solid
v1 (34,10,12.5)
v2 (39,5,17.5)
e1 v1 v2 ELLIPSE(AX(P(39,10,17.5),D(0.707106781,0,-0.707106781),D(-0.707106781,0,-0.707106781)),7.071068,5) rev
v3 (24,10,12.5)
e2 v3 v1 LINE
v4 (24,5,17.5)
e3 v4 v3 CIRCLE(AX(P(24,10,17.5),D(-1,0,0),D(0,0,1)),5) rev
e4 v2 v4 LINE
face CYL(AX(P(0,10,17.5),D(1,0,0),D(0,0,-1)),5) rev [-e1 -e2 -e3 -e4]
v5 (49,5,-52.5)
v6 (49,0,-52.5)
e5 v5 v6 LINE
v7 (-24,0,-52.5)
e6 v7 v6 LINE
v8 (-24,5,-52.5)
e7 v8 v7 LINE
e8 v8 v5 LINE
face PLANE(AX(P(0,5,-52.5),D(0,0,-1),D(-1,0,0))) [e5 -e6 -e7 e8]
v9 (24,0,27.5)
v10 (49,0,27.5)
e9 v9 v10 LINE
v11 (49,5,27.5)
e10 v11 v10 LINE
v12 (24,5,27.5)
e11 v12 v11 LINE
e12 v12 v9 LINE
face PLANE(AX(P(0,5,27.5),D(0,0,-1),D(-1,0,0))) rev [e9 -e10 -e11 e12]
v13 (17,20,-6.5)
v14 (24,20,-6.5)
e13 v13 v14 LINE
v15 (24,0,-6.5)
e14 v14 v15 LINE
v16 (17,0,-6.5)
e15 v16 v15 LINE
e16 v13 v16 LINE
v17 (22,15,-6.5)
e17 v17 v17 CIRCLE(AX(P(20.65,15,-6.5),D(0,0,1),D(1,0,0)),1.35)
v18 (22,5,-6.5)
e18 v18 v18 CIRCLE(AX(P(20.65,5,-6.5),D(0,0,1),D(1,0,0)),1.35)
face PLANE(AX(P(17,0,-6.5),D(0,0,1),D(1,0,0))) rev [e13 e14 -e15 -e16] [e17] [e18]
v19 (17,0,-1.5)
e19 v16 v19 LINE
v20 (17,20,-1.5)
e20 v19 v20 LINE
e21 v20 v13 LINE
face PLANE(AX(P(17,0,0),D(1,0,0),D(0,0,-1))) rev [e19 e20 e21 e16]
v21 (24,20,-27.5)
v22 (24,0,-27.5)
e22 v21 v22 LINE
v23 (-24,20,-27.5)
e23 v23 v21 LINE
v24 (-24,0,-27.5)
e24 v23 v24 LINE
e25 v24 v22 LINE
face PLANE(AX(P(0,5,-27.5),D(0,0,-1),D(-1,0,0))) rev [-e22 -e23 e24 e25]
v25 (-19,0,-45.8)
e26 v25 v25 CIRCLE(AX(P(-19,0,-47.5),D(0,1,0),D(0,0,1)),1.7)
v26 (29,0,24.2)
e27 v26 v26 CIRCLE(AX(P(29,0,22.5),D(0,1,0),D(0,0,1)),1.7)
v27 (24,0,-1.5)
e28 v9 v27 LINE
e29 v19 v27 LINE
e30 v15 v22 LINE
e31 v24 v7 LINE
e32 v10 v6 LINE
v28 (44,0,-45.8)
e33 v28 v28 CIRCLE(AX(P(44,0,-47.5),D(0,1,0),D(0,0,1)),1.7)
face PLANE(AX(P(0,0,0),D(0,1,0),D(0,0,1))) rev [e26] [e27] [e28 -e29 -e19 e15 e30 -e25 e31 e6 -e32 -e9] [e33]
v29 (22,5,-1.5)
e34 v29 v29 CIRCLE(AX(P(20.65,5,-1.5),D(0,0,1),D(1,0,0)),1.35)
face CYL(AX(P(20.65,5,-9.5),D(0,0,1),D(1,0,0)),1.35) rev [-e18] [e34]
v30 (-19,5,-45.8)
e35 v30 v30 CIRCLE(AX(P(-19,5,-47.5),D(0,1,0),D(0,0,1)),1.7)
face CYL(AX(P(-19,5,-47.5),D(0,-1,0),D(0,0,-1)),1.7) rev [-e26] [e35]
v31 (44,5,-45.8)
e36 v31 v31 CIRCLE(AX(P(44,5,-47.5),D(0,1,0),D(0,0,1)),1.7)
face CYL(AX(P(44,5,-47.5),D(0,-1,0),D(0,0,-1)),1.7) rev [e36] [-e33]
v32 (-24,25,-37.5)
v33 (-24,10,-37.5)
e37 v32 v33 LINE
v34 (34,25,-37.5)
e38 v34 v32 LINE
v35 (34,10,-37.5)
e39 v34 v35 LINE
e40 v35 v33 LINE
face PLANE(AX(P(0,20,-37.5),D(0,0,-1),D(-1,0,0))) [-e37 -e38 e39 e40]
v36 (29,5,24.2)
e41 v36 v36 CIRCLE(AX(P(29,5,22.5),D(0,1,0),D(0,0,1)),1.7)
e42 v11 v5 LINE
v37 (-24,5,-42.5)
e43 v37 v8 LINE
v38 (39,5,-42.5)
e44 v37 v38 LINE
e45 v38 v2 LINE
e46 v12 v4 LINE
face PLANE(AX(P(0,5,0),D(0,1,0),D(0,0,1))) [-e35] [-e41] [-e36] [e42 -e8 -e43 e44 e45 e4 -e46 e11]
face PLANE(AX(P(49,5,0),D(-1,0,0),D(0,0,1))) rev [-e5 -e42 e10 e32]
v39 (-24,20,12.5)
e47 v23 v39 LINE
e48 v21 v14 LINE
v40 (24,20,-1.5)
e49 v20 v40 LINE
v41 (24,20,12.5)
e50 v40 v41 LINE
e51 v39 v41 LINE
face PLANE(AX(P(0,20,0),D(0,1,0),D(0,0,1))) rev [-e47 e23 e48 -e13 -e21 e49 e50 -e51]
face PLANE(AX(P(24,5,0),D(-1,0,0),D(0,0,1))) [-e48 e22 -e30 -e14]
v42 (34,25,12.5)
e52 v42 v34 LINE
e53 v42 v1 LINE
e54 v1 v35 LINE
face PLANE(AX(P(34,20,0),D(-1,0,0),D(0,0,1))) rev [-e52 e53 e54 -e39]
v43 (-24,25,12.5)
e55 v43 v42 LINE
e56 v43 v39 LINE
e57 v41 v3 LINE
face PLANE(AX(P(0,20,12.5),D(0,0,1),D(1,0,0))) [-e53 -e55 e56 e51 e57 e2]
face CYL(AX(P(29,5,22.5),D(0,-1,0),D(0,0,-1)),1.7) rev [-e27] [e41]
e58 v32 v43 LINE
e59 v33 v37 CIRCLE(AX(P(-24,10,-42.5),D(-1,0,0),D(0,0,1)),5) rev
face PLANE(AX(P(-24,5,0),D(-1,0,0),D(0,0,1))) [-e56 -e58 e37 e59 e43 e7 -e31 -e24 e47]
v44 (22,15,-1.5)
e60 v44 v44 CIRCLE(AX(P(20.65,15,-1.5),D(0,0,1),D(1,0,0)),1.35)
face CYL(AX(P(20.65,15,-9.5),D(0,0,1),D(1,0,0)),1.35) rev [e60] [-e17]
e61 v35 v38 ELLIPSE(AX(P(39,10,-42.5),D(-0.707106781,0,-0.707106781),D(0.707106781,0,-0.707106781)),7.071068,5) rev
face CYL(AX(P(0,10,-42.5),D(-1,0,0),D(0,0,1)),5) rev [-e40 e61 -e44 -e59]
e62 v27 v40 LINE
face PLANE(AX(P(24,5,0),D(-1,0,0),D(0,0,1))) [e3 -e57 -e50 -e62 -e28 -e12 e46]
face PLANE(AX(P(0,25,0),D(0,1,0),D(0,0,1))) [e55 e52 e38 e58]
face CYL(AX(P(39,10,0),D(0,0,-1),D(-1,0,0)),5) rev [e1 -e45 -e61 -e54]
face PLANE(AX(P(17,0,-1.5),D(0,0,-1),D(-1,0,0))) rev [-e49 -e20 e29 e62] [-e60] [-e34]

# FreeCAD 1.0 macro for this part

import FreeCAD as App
import Part
import Sketcher
from FreeCAD import Vector


def edges_at(feature, points):
    """Names of the edges that pass closest to the given points."""
    edges = feature.Shape.Edges
    near = lambda p: min(range(len(edges)), key=lambda i: edges[i].distToShape(Part.Vertex(*p))[0])
    return sorted({f"Edge{near(p) + 1}" for p in points})

doc = App.newDocument("Part")
body = doc.addObject("PartDesign::Body", "Body")

# Sketch on XZ plane
sketch1 = body.newObject("Sketcher::SketchObject", "Sketch")
sketch1.AttachmentSupport = (doc.getObject("XZ_Plane"), [""])
sketch1.MapMode = "FlatFace"
sketch1.addGeometry(Part.LineSegment(Vector(24, -27.5, 0), Vector(24, 27.5, 0)), False)
sketch1.addGeometry(Part.LineSegment(Vector(24, 27.5, 0), Vector(49, 27.5, 0)), False)
sketch1.addGeometry(Part.LineSegment(Vector(49, 27.5, 0), Vector(49, -52.5, 0)), False)
sketch1.addGeometry(Part.LineSegment(Vector(49, -52.5, 0), Vector(-24, -52.5, 0)), False)
sketch1.addGeometry(Part.LineSegment(Vector(-24, -52.5, 0), Vector(-24, -27.5, 0)), False)
sketch1.addGeometry(Part.LineSegment(Vector(-24, -27.5, 0), Vector(24, -27.5, 0)), False)
sketch1.addGeometry(Part.Circle(Vector(29, 22.5, 0), Vector(0, 0, 1), 1.7), False)
sketch1.addGeometry(Part.Circle(Vector(-19, -47.5, 0), Vector(0, 0, 1), 1.7), False)
sketch1.addGeometry(Part.Circle(Vector(44, -47.5, 0), Vector(0, 0, 1), 1.7), False)
sketch1.addConstraint(Sketcher.Constraint("Coincident", 0, 2, 1, 1))
sketch1.addConstraint(Sketcher.Constraint("Coincident", 1, 2, 2, 1))
sketch1.addConstraint(Sketcher.Constraint("Coincident", 2, 2, 3, 1))
sketch1.addConstraint(Sketcher.Constraint("Coincident", 3, 2, 4, 1))
sketch1.addConstraint(Sketcher.Constraint("Coincident", 4, 2, 5, 1))
sketch1.addConstraint(Sketcher.Constraint("Coincident", 5, 2, 0, 1))
sketch1.addConstraint(Sketcher.Constraint("Vertical", 0))
sketch1.addConstraint(Sketcher.Constraint("Horizontal", 1))
sketch1.addConstraint(Sketcher.Constraint("Vertical", 2))
sketch1.addConstraint(Sketcher.Constraint("Horizontal", 3))
sketch1.addConstraint(Sketcher.Constraint("Vertical", 4))
sketch1.addConstraint(Sketcher.Constraint("Horizontal", 5))
sketch1.addConstraint(Sketcher.Constraint("Equal", 6, 7))
sketch1.addConstraint(Sketcher.Constraint("Equal", 7, 8))
sketch1.addConstraint(Sketcher.Constraint("Symmetric", 0, 2, 4, 2, -1, 1))
sketch1.addConstraint(Sketcher.Constraint("Horizontal", 7, 3, 8, 3))
sketch1.addConstraint(Sketcher.Constraint("Equal", 1, 4))
sketch1.addConstraint(Sketcher.Constraint("Diameter", 6, 3.4))
sketch1.addConstraint(Sketcher.Constraint("DistanceX", 1, 1, 1, 2, 25.0))
sketch1.addConstraint(Sketcher.Constraint("DistanceX", 3, 2, 3, 1, 73.0))
sketch1.addConstraint(Sketcher.Constraint("DistanceY", 0, 1, 0, 2, 55.0))
sketch1.addConstraint(Sketcher.Constraint("DistanceX", -1, 1, 6, 3, 29.0))
sketch1.addConstraint(Sketcher.Constraint("DistanceX", 7, 3, -1, 1, 19.0))
sketch1.addConstraint(Sketcher.Constraint("DistanceX", -1, 1, 8, 3, 44.0))
sketch1.addConstraint(Sketcher.Constraint("DistanceY", 7, 3, 6, 3, 70.0))
sketch1.addConstraint(Sketcher.Constraint("DistanceY", 6, 3, 0, 2, 5.0))
pad1 = body.newObject("PartDesign::Pad", "Pad")
pad1.Profile = sketch1
pad1.Length = 5
pad1.Reversed = True

# Sketch on XZ plane
sketch2 = body.newObject("Sketcher::SketchObject", "Sketch001")
sketch2.AttachmentSupport = (doc.getObject("XZ_Plane"), [""])
sketch2.MapMode = "FlatFace"
sketch2.AttachmentOffset = App.Placement(Vector(0, 0, -5), App.Rotation())
sketch2.addGeometry(Part.LineSegment(Vector(-24, -38, 0), Vector(-24, -28, 0)), False)
sketch2.addGeometry(Part.LineSegment(Vector(-24, -28, 0), Vector(24, -28, 0)), False)
sketch2.addGeometry(Part.LineSegment(Vector(24, -28, 0), Vector(24, 12, 0)), False)
sketch2.addGeometry(Part.LineSegment(Vector(24, 12, 0), Vector(34, 12, 0)), False)
sketch2.addGeometry(Part.LineSegment(Vector(34, 12, 0), Vector(34, -38, 0)), False)
sketch2.addGeometry(Part.LineSegment(Vector(34, -38, 0), Vector(-24, -38, 0)), False)
sketch2.addConstraint(Sketcher.Constraint("Coincident", 0, 2, 1, 1))
sketch2.addConstraint(Sketcher.Constraint("Coincident", 1, 2, 2, 1))
sketch2.addConstraint(Sketcher.Constraint("Coincident", 2, 2, 3, 1))
sketch2.addConstraint(Sketcher.Constraint("Coincident", 3, 2, 4, 1))
sketch2.addConstraint(Sketcher.Constraint("Coincident", 4, 2, 5, 1))
sketch2.addConstraint(Sketcher.Constraint("Coincident", 5, 2, 0, 1))
sketch2.addConstraint(Sketcher.Constraint("Vertical", 0))
sketch2.addConstraint(Sketcher.Constraint("Horizontal", 1))
sketch2.addConstraint(Sketcher.Constraint("Vertical", 2))
sketch2.addConstraint(Sketcher.Constraint("Horizontal", 3))
sketch2.addConstraint(Sketcher.Constraint("Vertical", 4))
sketch2.addConstraint(Sketcher.Constraint("Horizontal", 5))
sketch2.addConstraint(Sketcher.Constraint("Equal", 3, 0))
sketch2.addConstraint(Sketcher.Constraint("DistanceX", 1, 1, 1, 2, 48.0))
sketch2.addConstraint(Sketcher.Constraint("DistanceX", 3, 1, 3, 2, 10.0))
sketch2.addConstraint(Sketcher.Constraint("DistanceY", 2, 1, 2, 2, 40.0))
sketch2.addConstraint(Sketcher.Constraint("DistanceX", 0, 2, -1, 1, 24.0))
sketch2.addConstraint(Sketcher.Constraint("DistanceY", 0, 2, -1, 1, 27.5))
pad2 = body.newObject("PartDesign::Pad", "Pad001")
pad2.Profile = sketch2
pad2.Length = 15
pad2.Reversed = True

# Sketch on XZ plane
sketch3 = body.newObject("Sketcher::SketchObject", "Sketch002")
sketch3.AttachmentSupport = (doc.getObject("XZ_Plane"), [""])
sketch3.MapMode = "FlatFace"
sketch3.AttachmentOffset = App.Placement(Vector(0, 0, -20), App.Rotation())
sketch3.addGeometry(Part.LineSegment(Vector(-24, -38, 0), Vector(-24, 12, 0)), False)
sketch3.addGeometry(Part.LineSegment(Vector(-24, 12, 0), Vector(34, 12, 0)), False)
sketch3.addGeometry(Part.LineSegment(Vector(34, 12, 0), Vector(34, -38, 0)), False)
sketch3.addGeometry(Part.LineSegment(Vector(34, -38, 0), Vector(-24, -38, 0)), False)
sketch3.addConstraint(Sketcher.Constraint("Coincident", 0, 2, 1, 1))
sketch3.addConstraint(Sketcher.Constraint("Coincident", 1, 2, 2, 1))
sketch3.addConstraint(Sketcher.Constraint("Coincident", 2, 2, 3, 1))
sketch3.addConstraint(Sketcher.Constraint("Coincident", 3, 2, 0, 1))
sketch3.addConstraint(Sketcher.Constraint("Vertical", 0))
sketch3.addConstraint(Sketcher.Constraint("Horizontal", 1))
sketch3.addConstraint(Sketcher.Constraint("Vertical", 2))
sketch3.addConstraint(Sketcher.Constraint("Horizontal", 3))
sketch3.addConstraint(Sketcher.Constraint("DistanceX", 1, 1, 1, 2, 58.0))
sketch3.addConstraint(Sketcher.Constraint("DistanceY", 0, 1, 0, 2, 50.0))
sketch3.addConstraint(Sketcher.Constraint("DistanceX", 0, 2, -1, 1, 24.0))
sketch3.addConstraint(Sketcher.Constraint("DistanceY", -1, 1, 0, 2, 12.5))
pad3 = body.newObject("PartDesign::Pad", "Pad002")
pad3.Profile = sketch3
pad3.Length = 5
pad3.Reversed = True

# Sketch on YZ plane
sketch4 = body.newObject("Sketcher::SketchObject", "Sketch003")
sketch4.AttachmentSupport = (doc.getObject("YZ_Plane"), [""])
sketch4.MapMode = "FlatFace"
sketch4.AttachmentOffset = App.Placement(Vector(0, 0, 24), App.Rotation())
sketch4.addGeometry(Part.LineSegment(Vector(20, -6, 0), Vector(0, -6, 0)), False)
sketch4.addGeometry(Part.LineSegment(Vector(0, -6, 0), Vector(0, -2, 0)), False)
sketch4.addGeometry(Part.LineSegment(Vector(0, -2, 0), Vector(20, -2, 0)), False)
sketch4.addGeometry(Part.LineSegment(Vector(20, -2, 0), Vector(20, -6, 0)), False)
sketch4.addConstraint(Sketcher.Constraint("Coincident", 0, 2, 1, 1))
sketch4.addConstraint(Sketcher.Constraint("Coincident", 1, 2, 2, 1))
sketch4.addConstraint(Sketcher.Constraint("Coincident", 2, 2, 3, 1))
sketch4.addConstraint(Sketcher.Constraint("Coincident", 3, 2, 0, 1))
sketch4.addConstraint(Sketcher.Constraint("Horizontal", 0))
sketch4.addConstraint(Sketcher.Constraint("Vertical", 1))
sketch4.addConstraint(Sketcher.Constraint("Horizontal", 2))
sketch4.addConstraint(Sketcher.Constraint("Vertical", 3))
sketch4.addConstraint(Sketcher.Constraint("PointOnObject", 0, 2, -2))
sketch4.addConstraint(Sketcher.Constraint("DistanceX", 0, 2, 0, 1, 20.0))
sketch4.addConstraint(Sketcher.Constraint("DistanceY", 1, 1, 1, 2, 5.0))
sketch4.addConstraint(Sketcher.Constraint("DistanceY", 0, 2, -1, 1, 6.5))
pad4 = body.newObject("PartDesign::Pad", "Pad003")
pad4.Profile = sketch4
pad4.Length = 7
pad4.Reversed = True

# Sketch on XY plane
sketch5 = body.newObject("Sketcher::SketchObject", "Sketch004")
sketch5.AttachmentSupport = (doc.getObject("XY_Plane"), [""])
sketch5.MapMode = "FlatFace"
sketch5.AttachmentOffset = App.Placement(Vector(0, 0, -1.5), App.Rotation())
sketch5.addGeometry(Part.Circle(Vector(20.6, 15, 0), Vector(0, 0, 1), 1.4), False)
sketch5.addGeometry(Part.Circle(Vector(20.6, 5, 0), Vector(0, 0, 1), 1.4), False)
sketch5.addConstraint(Sketcher.Constraint("Equal", 0, 1))
sketch5.addConstraint(Sketcher.Constraint("Vertical", 0, 3, 1, 3))
sketch5.addConstraint(Sketcher.Constraint("Diameter", 0, 2.7))
sketch5.addConstraint(Sketcher.Constraint("DistanceY", -1, 1, 0, 3, 15.0))
sketch5.addConstraint(Sketcher.Constraint("DistanceY", -1, 1, 1, 3, 5.0))
sketch5.addConstraint(Sketcher.Constraint("DistanceX", -1, 1, 0, 3, 20.65))
pocket1 = body.newObject("PartDesign::Pocket", "Pocket")
pocket1.Profile = sketch5
pocket1.Length = 8
doc.recompute()

fillet = body.newObject("PartDesign::Fillet", "Fillet")
fillet.Base = (pocket1, edges_at(pocket1, [(34, 5, -12.5), (5, 5, -37.5), (29, 5, 12.5)]))
fillet.Radius = 5

doc.recompute()
